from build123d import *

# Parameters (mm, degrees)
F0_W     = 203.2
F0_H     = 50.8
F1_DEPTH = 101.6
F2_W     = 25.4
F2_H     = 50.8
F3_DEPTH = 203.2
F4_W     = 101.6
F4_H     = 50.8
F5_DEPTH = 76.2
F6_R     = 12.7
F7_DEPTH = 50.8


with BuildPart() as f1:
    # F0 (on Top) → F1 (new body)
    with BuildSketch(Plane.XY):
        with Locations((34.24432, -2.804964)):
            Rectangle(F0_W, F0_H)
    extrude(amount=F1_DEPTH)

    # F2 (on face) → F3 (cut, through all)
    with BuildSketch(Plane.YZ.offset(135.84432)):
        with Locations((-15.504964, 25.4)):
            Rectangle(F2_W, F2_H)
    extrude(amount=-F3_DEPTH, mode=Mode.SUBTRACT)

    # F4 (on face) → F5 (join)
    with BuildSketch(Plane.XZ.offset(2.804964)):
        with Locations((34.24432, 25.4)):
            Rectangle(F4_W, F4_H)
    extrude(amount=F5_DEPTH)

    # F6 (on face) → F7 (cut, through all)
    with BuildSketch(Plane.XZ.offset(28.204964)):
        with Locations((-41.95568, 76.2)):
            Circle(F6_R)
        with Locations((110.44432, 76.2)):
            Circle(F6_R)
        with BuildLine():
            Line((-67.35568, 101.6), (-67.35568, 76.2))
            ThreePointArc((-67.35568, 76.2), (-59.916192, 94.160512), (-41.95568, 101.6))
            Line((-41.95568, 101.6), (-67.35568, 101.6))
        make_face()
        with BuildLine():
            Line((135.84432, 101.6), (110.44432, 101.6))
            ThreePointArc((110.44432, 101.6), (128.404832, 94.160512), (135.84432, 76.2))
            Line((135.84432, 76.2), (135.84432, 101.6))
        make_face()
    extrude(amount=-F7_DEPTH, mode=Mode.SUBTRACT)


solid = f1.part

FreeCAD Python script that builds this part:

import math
import FreeCAD as App
import Part
import Sketcher
Q = App.Units.Quantity

doc = App.newDocument("Part")
body = doc.addObject("PartDesign::Body", "Body")

# Sketch on XY plane
sketch1 = body.newObject("Sketcher::SketchObject", "Sketch")
sketch1.AttachmentSupport = (doc.getObject("XY_Plane"), [""])
sketch1.MapMode = "FlatFace"
sketch1.addGeometry([
    Part.LineSegment(App.Vector(-67, 23, 0), App.Vector(-67, -28, 0)),
    Part.LineSegment(App.Vector(-67, -28, 0), App.Vector(136, -28, 0)),
    Part.LineSegment(App.Vector(136, -28, 0), App.Vector(136, 23, 0)),
    Part.LineSegment(App.Vector(136, 23, 0), App.Vector(-67, 23, 0)),
], False)
sketch1.addConstraint([
    Sketcher.Constraint("Coincident", 0, 2, 1, 1),
    Sketcher.Constraint("Coincident", 1, 2, 2, 1),
    Sketcher.Constraint("Coincident", 2, 2, 3, 1),
    Sketcher.Constraint("Coincident", 3, 2, 0, 1),
    Sketcher.Constraint("Vertical", 0),
    Sketcher.Constraint("Horizontal", 1),
    Sketcher.Constraint("Vertical", 2),
    Sketcher.Constraint("Horizontal", 3),
    Sketcher.Constraint("DistanceX", 1, 1, 1, 2, Q("8 in")),
    Sketcher.Constraint("DistanceY", 0, 2, 0, 1, Q("2 in")),
    Sketcher.Constraint("DistanceX", 0, 2, -1, 1, Q("67.35568 mm")),
    Sketcher.Constraint("DistanceY", 0, 2, -1, 1, Q("28.204964 mm")),
])
pad1 = body.newObject("PartDesign::Pad", "Pad")
pad1.Profile = sketch1
pad1.Length = Q("4 in")

# Sketch on YZ plane
sketch2 = body.newObject("Sketcher::SketchObject", "Sketch001")
sketch2.AttachmentSupport = (doc.getObject("YZ_Plane"), [""])
sketch2.MapMode = "FlatFace"
sketch2.AttachmentOffset = App.Placement(App.Vector(0, 0, 135.84432), App.Rotation())
sketch2.addGeometry([
    Part.LineSegment(App.Vector(-28, 51, 0), App.Vector(-28, 0, 0)),
    Part.LineSegment(App.Vector(-28, 0, 0), App.Vector(-3, 0, 0)),
    Part.LineSegment(App.Vector(-3, 0, 0), App.Vector(-3, 51, 0)),
    Part.LineSegment(App.Vector(-3, 51, 0), App.Vector(-28, 51, 0)),
], False)
sketch2.addConstraint([
    Sketcher.Constraint("Coincident", 0, 2, 1, 1),
    Sketcher.Constraint("Coincident", 1, 2, 2, 1),
    Sketcher.Constraint("Coincident", 2, 2, 3, 1),
    Sketcher.Constraint("Coincident", 3, 2, 0, 1),
    Sketcher.Constraint("Vertical", 0),
    Sketcher.Constraint("Horizontal", 1),
    Sketcher.Constraint("Vertical", 2),
    Sketcher.Constraint("Horizontal", 3),
    Sketcher.Constraint("PointOnObject", 0, 2, -1),
    Sketcher.Constraint("DistanceX", 1, 1, 1, 2, Q("1 in")),
    Sketcher.Constraint("DistanceY", 0, 2, 0, 1, Q("2 in")),
    Sketcher.Constraint("DistanceX", 0, 2, -1, 1, Q("28.204964 mm")),
])
pocket1 = body.newObject("PartDesign::Pocket", "Pocket")
pocket1.Profile = sketch2
pocket1.Type = "ThroughAll"

# Sketch on XZ plane
sketch3 = body.newObject("Sketcher::SketchObject", "Sketch002")
sketch3.AttachmentSupport = (doc.getObject("XZ_Plane"), [""])
sketch3.MapMode = "FlatFace"
sketch3.AttachmentOffset = App.Placement(App.Vector(0, 0, 2.804964), App.Rotation())
sketch3.addGeometry([
    Part.LineSegment(App.Vector(-17, 51, 0), App.Vector(-17, 0, 0)),
    Part.LineSegment(App.Vector(-17, 0, 0), App.Vector(85, 0, 0)),
    Part.LineSegment(App.Vector(85, 0, 0), App.Vector(85, 51, 0)),
    Part.LineSegment(App.Vector(85, 51, 0), App.Vector(-17, 51, 0)),
], False)
sketch3.addConstraint([
    Sketcher.Constraint("Coincident", 0, 2, 1, 1),
    Sketcher.Constraint("Coincident", 1, 2, 2, 1),
    Sketcher.Constraint("Coincident", 2, 2, 3, 1),
    Sketcher.Constraint("Coincident", 3, 2, 0, 1),
    Sketcher.Constraint("Vertical", 0),
    Sketcher.Constraint("Horizontal", 1),
    Sketcher.Constraint("Vertical", 2),
    Sketcher.Constraint("Horizontal", 3),
    Sketcher.Constraint("PointOnObject", 0, 2, -1),
    Sketcher.Constraint("DistanceX", 1, 1, 1, 2, Q("4 in")),
    Sketcher.Constraint("DistanceY", 0, 2, 0, 1, Q("2 in")),
    Sketcher.Constraint("DistanceX", 0, 2, -1, 1, Q("16.55568 mm")),
])
pad2 = body.newObject("PartDesign::Pad", "Pad001")
pad2.Profile = sketch3
pad2.Length = Q("3 in")

# Sketch on XZ plane
sketch4 = body.newObject("Sketcher::SketchObject", "Sketch003")
sketch4.AttachmentSupport = (doc.getObject("XZ_Plane"), [""])
sketch4.MapMode = "FlatFace"
sketch4.AttachmentOffset = App.Placement(App.Vector(0, 0, 28.204964), App.Rotation())
sketch4.addGeometry([
    Part.Circle(App.Vector(-42, 76, 0), App.Vector(0, 0, 1), 13),  # 0
    Part.Circle(App.Vector(110, 76, 0), App.Vector(0, 0, 1), 13),  # 1
    Part.LineSegment(App.Vector(-67, 102, 0), App.Vector(-67, 76, 0)),  # 2
    Part.ArcOfCircle(Part.Circle(App.Vector(-42, 76, 0), App.Vector(0, 0, 1), 25), math.radians(90), math.radians(180)),  # 3
    Part.LineSegment(App.Vector(-42, 102, 0), App.Vector(-67, 102, 0)),  # 4
    Part.LineSegment(App.Vector(136, 102, 0), App.Vector(110, 102, 0)),  # 5
    Part.ArcOfCircle(Part.Circle(App.Vector(110, 76, 0), App.Vector(0, 0, 1), 25), math.radians(0), math.radians(90)),  # 6
    Part.LineSegment(App.Vector(136, 76, 0), App.Vector(136, 102, 0)),  # 7
], False)
sketch4.addConstraint([
    Sketcher.Constraint("Tangent", 2, 2, 3, 2),
    Sketcher.Constraint("Tangent", 3, 1, 4, 1),
    Sketcher.Constraint("Coincident", 4, 2, 2, 1),
    Sketcher.Constraint("Tangent", 5, 2, 6, 2),
    Sketcher.Constraint("Tangent", 6, 1, 7, 1),
    Sketcher.Constraint("Coincident", 7, 2, 5, 1),
    Sketcher.Constraint("Vertical", 2),
    Sketcher.Constraint("Horizontal", 4),
    Sketcher.Constraint("Horizontal", 5),
    Sketcher.Constraint("Vertical", 7),
    Sketcher.Constraint("Coincident", 3, 3, 0, 3),
    Sketcher.Constraint("Coincident", 6, 3, 1, 3),
    Sketcher.Constraint("Equal", 0, 1),
    Sketcher.Constraint("Equal", 3, 6),
    Sketcher.Constraint("Horizontal", 0, 3, 1, 3),
    Sketcher.Constraint("Diameter", 0, Q("1 in")),
    Sketcher.Constraint("Radius", 3, Q("1 in")),
    Sketcher.Constraint("DistanceY", -1, 1, 0, 3, Q("3 in")),
    Sketcher.Constraint("DistanceX", 0, 3, 1, 3, Q("6 in")),
    Sketcher.Constraint("DistanceX", 0, 3, -1, 1, Q("41.95568 mm")),
])
pocket2 = body.newObject("PartDesign::Pocket", "Pocket001")
pocket2.Profile = sketch4
pocket2.Type = "ThroughAll"

doc.recompute()
